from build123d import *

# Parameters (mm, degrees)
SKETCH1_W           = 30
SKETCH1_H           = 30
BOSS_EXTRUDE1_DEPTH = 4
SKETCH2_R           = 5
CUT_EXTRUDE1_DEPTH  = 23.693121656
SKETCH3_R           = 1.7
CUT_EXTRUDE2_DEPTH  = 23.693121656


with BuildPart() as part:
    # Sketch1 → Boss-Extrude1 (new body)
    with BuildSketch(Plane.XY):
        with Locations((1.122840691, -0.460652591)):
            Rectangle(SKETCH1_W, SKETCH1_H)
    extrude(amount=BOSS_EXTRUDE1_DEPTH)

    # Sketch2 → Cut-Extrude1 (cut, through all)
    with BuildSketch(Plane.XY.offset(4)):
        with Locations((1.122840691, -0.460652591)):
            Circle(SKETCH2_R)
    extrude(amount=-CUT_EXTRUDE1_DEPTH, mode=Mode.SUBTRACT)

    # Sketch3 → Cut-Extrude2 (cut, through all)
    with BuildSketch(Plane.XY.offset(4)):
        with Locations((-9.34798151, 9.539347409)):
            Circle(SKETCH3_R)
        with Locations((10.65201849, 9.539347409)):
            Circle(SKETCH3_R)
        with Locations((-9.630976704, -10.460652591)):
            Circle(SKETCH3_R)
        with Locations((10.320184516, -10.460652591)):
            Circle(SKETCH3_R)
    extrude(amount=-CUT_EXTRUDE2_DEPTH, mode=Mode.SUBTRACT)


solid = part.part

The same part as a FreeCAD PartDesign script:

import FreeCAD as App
import Part
import Sketcher

V = App.Vector
Q = App.Units.Quantity

doc = App.newDocument("Part")
params = doc.addObject("Spreadsheet::Sheet", "Params")
for row, (alias, value) in enumerate([
    ("sketch1_width", "30 mm"),
    ("pad1_length", "4 mm"),
    ("sketch2_diameter", "10 mm"),
    ("sketch3_diameter", "3.4 mm"),
], start=1):
    params.set(f"A{row}", alias)
    params.set(f"B{row}", "=" + value)
    params.setAlias(f"B{row}", alias)

body = doc.addObject("PartDesign::Body", "Body")

# Sketch on XY plane
sketch1 = body.newObject("Sketcher::SketchObject", "Sketch")
sketch1.AttachmentSupport = (doc.getObject("XY_Plane"), [""])
sketch1.MapMode = "FlatFace"
sketch1.addGeometry([
    Part.LineSegment(V(-14, 15, 0), V(-14, -15, 0)),
    Part.LineSegment(V(-14, -15, 0), V(16, -15, 0)),
    Part.LineSegment(V(16, -15, 0), V(16, 15, 0)),
    Part.LineSegment(V(16, 15, 0), V(-14, 15, 0)),
], False)
sketch1.addConstraint([
    Sketcher.Constraint("Coincident", 0, 2, 1, 1),
    Sketcher.Constraint("Coincident", 1, 2, 2, 1),
    Sketcher.Constraint("Coincident", 2, 2, 3, 1),
    Sketcher.Constraint("Coincident", 3, 2, 0, 1),
    Sketcher.Constraint("Vertical", 0),
    Sketcher.Constraint("Horizontal", 1),
    Sketcher.Constraint("Vertical", 2),
    Sketcher.Constraint("Horizontal", 3),
    Sketcher.Constraint("Equal", 3, 0),
    Sketcher.Constraint("DistanceX", 1, 1, 1, 2, Q("30 mm")),
    Sketcher.Constraint("DistanceX", 0, 2, -1, 1, Q("13.877159 mm")),
    Sketcher.Constraint("DistanceY", 0, 2, -1, 1, Q("15.460653 mm")),
])
sketch1.setExpression("Constraints[9]", "Params.sketch1_width")
pad1 = body.newObject("PartDesign::Pad", "Pad")
pad1.Profile = sketch1
pad1.setExpression("Length", "Params.pad1_length")

# Sketch on XY plane
sketch2 = body.newObject("Sketcher::SketchObject", "Sketch001")
sketch2.AttachmentSupport = (doc.getObject("XY_Plane"), [""])
sketch2.MapMode = "FlatFace"
sketch2.AttachmentOffset = App.Placement(V(0, 0, 4), App.Rotation())
sketch2.addGeometry(Part.Circle(V(1, 0, 0), V(0, 0, 1), 5), False)
sketch2.addConstraint([
    Sketcher.Constraint("Diameter", 0, Q("10 mm")),
    Sketcher.Constraint("DistanceX", -1, 1, 0, 3, Q("1.122841 mm")),
    Sketcher.Constraint("DistanceY", 0, 3, -1, 1, Q("0.460653 mm")),
])
sketch2.setExpression("Constraints[0]", "Params.sketch2_diameter")
pocket1 = body.newObject("PartDesign::Pocket", "Pocket")
pocket1.Profile = sketch2
pocket1.Type = "ThroughAll"

# Sketch on XY plane
sketch3 = body.newObject("Sketcher::SketchObject", "Sketch002")
sketch3.AttachmentSupport = (doc.getObject("XY_Plane"), [""])
sketch3.MapMode = "FlatFace"
sketch3.AttachmentOffset = App.Placement(V(0, 0, 4), App.Rotation())
sketch3.addGeometry([
    Part.Circle(V(-9.3, 9.5, 0), V(0, 0, 1), 1.7),
    Part.Circle(V(10.7, 9.5, 0), V(0, 0, 1), 1.7),
    Part.Circle(V(-9.6, -10.5, 0), V(0, 0, 1), 1.7),
    Part.Circle(V(10.3, -10.5, 0), V(0, 0, 1), 1.7),
], False)
sketch3.addConstraint([
    Sketcher.Constraint("Equal", 0, 1),
    Sketcher.Constraint("Equal", 1, 2),
    Sketcher.Constraint("Equal", 2, 3),
    Sketcher.Constraint("Horizontal", 0, 3, 1, 3),
    Sketcher.Constraint("Horizontal", 2, 3, 3, 3),
    Sketcher.Constraint("Diameter", 0, Q("3.4 mm")),
    Sketcher.Constraint("DistanceX", 0, 3, 1, 3, Q("20 mm")),
    Sketcher.Constraint("DistanceY", 2, 3, 0, 3, Q("20 mm")),
    Sketcher.Constraint("DistanceX", 0, 3, -1, 1, Q("9.347982 mm")),
    Sketcher.Constraint("DistanceX", 2, 3, 3, 3, Q("19.951161 mm")),
    Sketcher.Constraint("DistanceY", -1, 1, 0, 3, Q("9.539347 mm")),
    Sketcher.Constraint("DistanceX", 2, 3, -1, 1, Q("9.630977 mm")),
])
sketch3.setExpression("Constraints[5]", "Params.sketch3_diameter")
pocket2 = body.newObject("PartDesign::Pocket", "Pocket001")
pocket2.Profile = sketch3
pocket2.Type = "ThroughAll"

doc.recompute()
